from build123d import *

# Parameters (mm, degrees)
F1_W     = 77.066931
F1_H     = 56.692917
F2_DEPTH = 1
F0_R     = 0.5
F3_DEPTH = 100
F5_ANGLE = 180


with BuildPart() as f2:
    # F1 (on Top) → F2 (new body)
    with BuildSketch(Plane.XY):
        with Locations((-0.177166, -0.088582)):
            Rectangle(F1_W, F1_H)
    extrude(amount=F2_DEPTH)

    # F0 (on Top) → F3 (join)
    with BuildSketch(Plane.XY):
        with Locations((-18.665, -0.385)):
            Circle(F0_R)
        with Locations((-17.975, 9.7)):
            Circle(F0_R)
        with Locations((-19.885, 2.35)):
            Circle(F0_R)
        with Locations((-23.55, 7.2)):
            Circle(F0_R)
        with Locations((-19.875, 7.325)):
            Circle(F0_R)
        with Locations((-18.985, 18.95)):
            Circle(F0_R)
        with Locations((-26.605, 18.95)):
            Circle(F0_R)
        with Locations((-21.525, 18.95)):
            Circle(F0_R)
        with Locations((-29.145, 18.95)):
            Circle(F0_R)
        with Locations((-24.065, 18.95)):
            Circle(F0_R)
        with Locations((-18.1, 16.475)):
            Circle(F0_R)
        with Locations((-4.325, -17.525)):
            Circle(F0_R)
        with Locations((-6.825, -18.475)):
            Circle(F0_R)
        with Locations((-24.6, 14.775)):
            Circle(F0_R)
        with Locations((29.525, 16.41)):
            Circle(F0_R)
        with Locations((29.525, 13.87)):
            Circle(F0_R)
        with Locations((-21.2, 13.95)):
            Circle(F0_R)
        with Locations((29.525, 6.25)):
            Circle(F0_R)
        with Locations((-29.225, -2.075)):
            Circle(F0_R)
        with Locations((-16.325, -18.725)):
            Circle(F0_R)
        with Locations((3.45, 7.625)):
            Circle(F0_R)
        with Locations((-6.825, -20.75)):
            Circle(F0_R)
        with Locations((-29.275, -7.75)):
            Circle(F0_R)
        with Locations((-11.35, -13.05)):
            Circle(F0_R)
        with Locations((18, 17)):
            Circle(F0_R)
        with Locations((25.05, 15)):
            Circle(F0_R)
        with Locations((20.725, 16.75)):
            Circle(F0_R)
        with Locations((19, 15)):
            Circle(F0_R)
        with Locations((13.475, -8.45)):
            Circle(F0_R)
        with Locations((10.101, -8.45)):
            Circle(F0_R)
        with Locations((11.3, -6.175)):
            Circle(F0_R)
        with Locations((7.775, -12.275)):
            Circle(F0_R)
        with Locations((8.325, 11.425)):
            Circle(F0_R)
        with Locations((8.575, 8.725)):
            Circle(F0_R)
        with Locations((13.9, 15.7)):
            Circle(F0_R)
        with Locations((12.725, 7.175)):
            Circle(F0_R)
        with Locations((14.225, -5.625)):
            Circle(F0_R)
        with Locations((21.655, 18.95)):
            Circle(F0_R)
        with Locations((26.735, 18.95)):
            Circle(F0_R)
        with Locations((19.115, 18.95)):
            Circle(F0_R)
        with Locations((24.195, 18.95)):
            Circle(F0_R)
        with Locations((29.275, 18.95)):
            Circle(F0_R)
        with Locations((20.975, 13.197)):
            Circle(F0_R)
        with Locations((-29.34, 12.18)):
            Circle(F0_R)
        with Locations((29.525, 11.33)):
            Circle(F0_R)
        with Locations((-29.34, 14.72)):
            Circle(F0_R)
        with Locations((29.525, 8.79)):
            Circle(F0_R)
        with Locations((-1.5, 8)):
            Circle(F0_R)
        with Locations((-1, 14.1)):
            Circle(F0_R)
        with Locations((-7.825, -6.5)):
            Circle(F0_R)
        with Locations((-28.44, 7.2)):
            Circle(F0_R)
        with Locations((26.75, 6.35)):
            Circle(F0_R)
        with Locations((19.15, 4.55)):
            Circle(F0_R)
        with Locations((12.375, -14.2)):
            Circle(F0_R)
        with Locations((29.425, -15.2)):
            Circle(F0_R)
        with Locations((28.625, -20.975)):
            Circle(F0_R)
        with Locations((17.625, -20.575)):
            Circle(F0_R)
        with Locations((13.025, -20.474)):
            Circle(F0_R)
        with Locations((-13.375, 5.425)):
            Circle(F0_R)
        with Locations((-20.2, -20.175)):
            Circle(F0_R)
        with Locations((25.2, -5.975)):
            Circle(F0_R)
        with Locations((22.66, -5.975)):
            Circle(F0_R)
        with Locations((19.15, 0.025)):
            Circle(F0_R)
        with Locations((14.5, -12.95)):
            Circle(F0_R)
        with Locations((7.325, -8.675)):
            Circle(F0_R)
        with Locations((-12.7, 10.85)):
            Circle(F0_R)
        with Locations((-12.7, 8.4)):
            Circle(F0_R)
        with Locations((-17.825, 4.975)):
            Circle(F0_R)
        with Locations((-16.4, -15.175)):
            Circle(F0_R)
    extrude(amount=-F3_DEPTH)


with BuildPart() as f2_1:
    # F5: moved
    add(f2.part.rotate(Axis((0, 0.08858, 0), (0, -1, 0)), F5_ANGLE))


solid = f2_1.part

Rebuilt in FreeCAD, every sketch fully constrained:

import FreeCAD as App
import Part
import Sketcher
from FreeCAD import Vector
Q = App.Units.Quantity

doc = App.newDocument("Part")
body = doc.addObject("PartDesign::Body", "Body")

sketch1 = doc.addObject("Sketcher::SketchObject", "Sketch")
body.addObject(sketch1)
sketch1.AttachmentSupport = (doc.XY_Plane, [""])
sketch1.MapMode = "FlatFace"
sketch1.addGeometry([
    Part.LineSegment(Vector(-39, 28, 0), Vector(-39, -28, 0)),
    Part.LineSegment(Vector(-39, -28, 0), Vector(38, -28, 0)),
    Part.LineSegment(Vector(38, -28, 0), Vector(38, 28, 0)),
    Part.LineSegment(Vector(38, 28, 0), Vector(-39, 28, 0)),
], False)
sketch1.addConstraint([
    Sketcher.Constraint("Coincident", 0, 2, 1, 1),
    Sketcher.Constraint("Coincident", 1, 2, 2, 1),
    Sketcher.Constraint("Coincident", 2, 2, 3, 1),
    Sketcher.Constraint("Coincident", 3, 2, 0, 1),
    Sketcher.Constraint("Vertical", 0),
    Sketcher.Constraint("Horizontal", 1),
    Sketcher.Constraint("Vertical", 2),
    Sketcher.Constraint("Horizontal", 3),
    Sketcher.Constraint("DistanceX", 1, 1, 1, 2, Q("77.066931 mm")),
    Sketcher.Constraint("DistanceX", -1, 1, 1, 2, Q("38.356299 mm")),
    Sketcher.Constraint("DistanceY", 0, 2, 0, 1, Q("56.692917 mm")),
    Sketcher.Constraint("DistanceY", 0, 2, -1, 1, Q("28.43504 mm")),
])
pad1 = doc.addObject("PartDesign::Pad", "Pad")
body.addObject(pad1)
pad1.Profile = sketch1
pad1.Length = 1

sketch2 = doc.addObject("Sketcher::SketchObject", "Sketch001")
body.addObject(sketch2)
sketch2.AttachmentSupport = (doc.XY_Plane, [""])
sketch2.MapMode = "FlatFace"
sketch2.addGeometry([
    Part.Circle(Vector(-18.7, -0.4, 0), Vector(0, 0, 1), 0.5),
    Part.Circle(Vector(-18, 9.7, 0), Vector(0, 0, 1), 0.5),
    Part.Circle(Vector(-19.9, 2.4, 0), Vector(0, 0, 1), 0.5),
    Part.Circle(Vector(-23.6, 7.2, 0), Vector(0, 0, 1), 0.5),
    Part.Circle(Vector(-19.9, 7.3, 0), Vector(0, 0, 1), 0.5),
    Part.Circle(Vector(-19, 18.9, 0), Vector(0, 0, 1), 0.5),
    Part.Circle(Vector(-26.6, 18.9, 0), Vector(0, 0, 1), 0.5),
    Part.Circle(Vector(-21.5, 18.9, 0), Vector(0, 0, 1), 0.5),
    Part.Circle(Vector(-29.1, 18.9, 0), Vector(0, 0, 1), 0.5),
    Part.Circle(Vector(-24.1, 18.9, 0), Vector(0, 0, 1), 0.5),
    Part.Circle(Vector(-18.1, 16.5, 0), Vector(0, 0, 1), 0.5),
    Part.Circle(Vector(-4.3, -17.5, 0), Vector(0, 0, 1), 0.5),
    Part.Circle(Vector(-6.8, -18.5, 0), Vector(0, 0, 1), 0.5),
    Part.Circle(Vector(-24.6, 14.8, 0), Vector(0, 0, 1), 0.5),
    Part.Circle(Vector(29.5, 16.4, 0), Vector(0, 0, 1), 0.5),
    Part.Circle(Vector(29.5, 13.9, 0), Vector(0, 0, 1), 0.5),
    Part.Circle(Vector(-21.2, 13.9, 0), Vector(0, 0, 1), 0.5),
    Part.Circle(Vector(29.5, 6.2, 0), Vector(0, 0, 1), 0.5),
    Part.Circle(Vector(-29.2, -2.1, 0), Vector(0, 0, 1), 0.5),
    Part.Circle(Vector(-16.3, -18.7, 0), Vector(0, 0, 1), 0.5),
    Part.Circle(Vector(3.5, 7.6, 0), Vector(0, 0, 1), 0.5),
    Part.Circle(Vector(-6.8, -20.8, 0), Vector(0, 0, 1), 0.5),
    Part.Circle(Vector(-29.3, -7.8, 0), Vector(0, 0, 1), 0.5),
    Part.Circle(Vector(-11.3, -13.1, 0), Vector(0, 0, 1), 0.5),
    Part.Circle(Vector(18, 17, 0), Vector(0, 0, 1), 0.5),
    Part.Circle(Vector(25.1, 15, 0), Vector(0, 0, 1), 0.5),
    Part.Circle(Vector(20.7, 16.8, 0), Vector(0, 0, 1), 0.5),
    Part.Circle(Vector(19, 15, 0), Vector(0, 0, 1), 0.5),
    Part.Circle(Vector(13.5, -8.4, 0), Vector(0, 0, 1), 0.5),
    Part.Circle(Vector(10.1, -8.4, 0), Vector(0, 0, 1), 0.5),
    Part.Circle(Vector(11.3, -6.2, 0), Vector(0, 0, 1), 0.5),
    Part.Circle(Vector(7.8, -12.3, 0), Vector(0, 0, 1), 0.5),
    Part.Circle(Vector(8.3, 11.4, 0), Vector(0, 0, 1), 0.5),
    Part.Circle(Vector(8.6, 8.7, 0), Vector(0, 0, 1), 0.5),
    Part.Circle(Vector(13.9, 15.7, 0), Vector(0, 0, 1), 0.5),
    Part.Circle(Vector(12.7, 7.2, 0), Vector(0, 0, 1), 0.5),
    Part.Circle(Vector(14.2, -5.6, 0), Vector(0, 0, 1), 0.5),
    Part.Circle(Vector(21.7, 18.9, 0), Vector(0, 0, 1), 0.5),
    Part.Circle(Vector(26.7, 18.9, 0), Vector(0, 0, 1), 0.5),
    Part.Circle(Vector(19.1, 18.9, 0), Vector(0, 0, 1), 0.5),
    Part.Circle(Vector(24.2, 18.9, 0), Vector(0, 0, 1), 0.5),
    Part.Circle(Vector(29.3, 18.9, 0), Vector(0, 0, 1), 0.5),
    Part.Circle(Vector(21, 13.2, 0), Vector(0, 0, 1), 0.5),
    Part.Circle(Vector(-29.3, 12.2, 0), Vector(0, 0, 1), 0.5),
    Part.Circle(Vector(29.5, 11.3, 0), Vector(0, 0, 1), 0.5),
    Part.Circle(Vector(-29.3, 14.7, 0), Vector(0, 0, 1), 0.5),
    Part.Circle(Vector(29.5, 8.8, 0), Vector(0, 0, 1), 0.5),
    Part.Circle(Vector(-1.5, 8, 0), Vector(0, 0, 1), 0.5),
    Part.Circle(Vector(-1, 14.1, 0), Vector(0, 0, 1), 0.5),
    Part.Circle(Vector(-7.8, -6.5, 0), Vector(0, 0, 1), 0.5),
    Part.Circle(Vector(-28.4, 7.2, 0), Vector(0, 0, 1), 0.5),
    Part.Circle(Vector(26.8, 6.3, 0), Vector(0, 0, 1), 0.5),
    Part.Circle(Vector(19.1, 4.5, 0), Vector(0, 0, 1), 0.5),
    Part.Circle(Vector(12.4, -14.2, 0), Vector(0, 0, 1), 0.5),
    Part.Circle(Vector(29.4, -15.2, 0), Vector(0, 0, 1), 0.5),
    Part.Circle(Vector(28.6, -21, 0), Vector(0, 0, 1), 0.5),
    Part.Circle(Vector(17.6, -20.6, 0), Vector(0, 0, 1), 0.5),
    Part.Circle(Vector(13, -20.5, 0), Vector(0, 0, 1), 0.5),
    Part.Circle(Vector(-13.4, 5.4, 0), Vector(0, 0, 1), 0.5),
    Part.Circle(Vector(-20.2, -20.2, 0), Vector(0, 0, 1), 0.5),
    Part.Circle(Vector(25.2, -6, 0), Vector(0, 0, 1), 0.5),
    Part.Circle(Vector(22.7, -6, 0), Vector(0, 0, 1), 0.5),
    Part.Circle(Vector(19.1, 0, 0), Vector(0, 0, 1), 0.5),
    Part.Circle(Vector(14.5, -12.9, 0), Vector(0, 0, 1), 0.5),
    Part.Circle(Vector(7.3, -8.7, 0), Vector(0, 0, 1), 0.5),
    Part.Circle(Vector(-12.7, 10.8, 0), Vector(0, 0, 1), 0.5),
    Part.Circle(Vector(-12.7, 8.4, 0), Vector(0, 0, 1), 0.5),
    Part.Circle(Vector(-17.8, 5, 0), Vector(0, 0, 1), 0.5),
    Part.Circle(Vector(-16.4, -15.2, 0), Vector(0, 0, 1), 0.5),
], False)
sketch2.addConstraint([
    Sketcher.Constraint("Equal", 0, 1),
    Sketcher.Constraint("Equal", 1, 2),
    Sketcher.Constraint("Equal", 2, 3),
    Sketcher.Constraint("Equal", 3, 4),
    Sketcher.Constraint("Equal", 4, 5),
    Sketcher.Constraint("Equal", 5, 6),
    Sketcher.Constraint("Equal", 6, 7),
    Sketcher.Constraint("Equal", 7, 8),
    Sketcher.Constraint("Equal", 8, 9),
    Sketcher.Constraint("Equal", 9, 10),
    Sketcher.Constraint("Equal", 10, 11),
    Sketcher.Constraint("Equal", 11, 12),
    Sketcher.Constraint("Equal", 12, 13),
    Sketcher.Constraint("Equal", 13, 14),
    Sketcher.Constraint("Equal", 14, 15),
    Sketcher.Constraint("Equal", 15, 16),
    Sketcher.Constraint("Equal", 16, 17),
    Sketcher.Constraint("Equal", 17, 18),
    Sketcher.Constraint("Equal", 18, 19),
    Sketcher.Constraint("Equal", 19, 20),
    Sketcher.Constraint("Equal", 20, 21),
    Sketcher.Constraint("Equal", 21, 22),
    Sketcher.Constraint("Equal", 22, 23),
    Sketcher.Constraint("Equal", 23, 24),
    Sketcher.Constraint("Equal", 24, 25),
    Sketcher.Constraint("Equal", 25, 26),
    Sketcher.Constraint("Equal", 26, 27),
    Sketcher.Constraint("Equal", 27, 28),
    Sketcher.Constraint("Equal", 28, 29),
    Sketcher.Constraint("Equal", 29, 30),
    Sketcher.Constraint("Equal", 30, 31),
    Sketcher.Constraint("Equal", 31, 32),
    Sketcher.Constraint("Equal", 32, 33),
    Sketcher.Constraint("Equal", 33, 34),
    Sketcher.Constraint("Equal", 34, 35),
    Sketcher.Constraint("Equal", 35, 36),
    Sketcher.Constraint("Equal", 36, 37),
    Sketcher.Constraint("Equal", 37, 38),
    Sketcher.Constraint("Equal", 38, 39),
    Sketcher.Constraint("Equal", 39, 40),
    Sketcher.Constraint("Equal", 40, 41),
    Sketcher.Constraint("Equal", 41, 42),
    Sketcher.Constraint("Equal", 42, 43),
    Sketcher.Constraint("Equal", 43, 44),
    Sketcher.Constraint("Equal", 44, 45),
    Sketcher.Constraint("Equal", 45, 46),
    Sketcher.Constraint("Equal", 46, 47),
    Sketcher.Constraint("Equal", 47, 48),
    Sketcher.Constraint("Equal", 48, 49),
    Sketcher.Constraint("Equal", 49, 50),
    Sketcher.Constraint("Equal", 50, 51),
    Sketcher.Constraint("Equal", 51, 52),
    Sketcher.Constraint("Equal", 52, 53),
    Sketcher.Constraint("Equal", 53, 54),
    Sketcher.Constraint("Equal", 54, 55),
    Sketcher.Constraint("Equal", 55, 56),
    Sketcher.Constraint("Equal", 56, 57),
    Sketcher.Constraint("Equal", 57, 58),
    Sketcher.Constraint("Equal", 58, 59),
    Sketcher.Constraint("Equal", 59, 60),
    Sketcher.Constraint("Equal", 60, 61),
    Sketcher.Constraint("Equal", 61, 62),
    Sketcher.Constraint("Equal", 62, 63),
    Sketcher.Constraint("Equal", 63, 64),
    Sketcher.Constraint("Equal", 64, 65),
    Sketcher.Constraint("Equal", 65, 66),
    Sketcher.Constraint("Equal", 66, 67),
    Sketcher.Constraint("Equal", 67, 68),
    Sketcher.Constraint("Horizontal", 5, 3, 6, 3),
    Sketcher.Constraint("Horizontal", 6, 3, 7, 3),
    Sketcher.Constraint("Horizontal", 7, 3, 8, 3),
    Sketcher.Constraint("Horizontal", 8, 3, 9, 3),
    Sketcher.Constraint("Horizontal", 25, 3, 27, 3),
    Sketcher.Constraint("Horizontal", 28, 3, 29, 3),
    Sketcher.Constraint("Horizontal", 9, 3, 37, 3),
    Sketcher.Constraint("Horizontal", 37, 3, 38, 3),
    Sketcher.Constraint("Horizontal", 38, 3, 39, 3),
    Sketcher.Constraint("Horizontal", 39, 3, 40, 3),
    Sketcher.Constraint("Horizontal", 40, 3, 41, 3),
    Sketcher.Constraint("Horizontal", 3, 3, 50, 3),
    Sketcher.Constraint("Horizontal", 60, 3, 61, 3),
    Sketcher.Constraint("Vertical", 14, 3, 15, 3),
    Sketcher.Constraint("Vertical", 15, 3, 17, 3),
    Sketcher.Constraint("Vertical", 12, 3, 21, 3),
    Sketcher.Constraint("Vertical", 17, 3, 44, 3),
    Sketcher.Constraint("Vertical", 43, 3, 45, 3),
    Sketcher.Constraint("Vertical", 44, 3, 46, 3),
    Sketcher.Constraint("Vertical", 52, 3, 62, 3),
    Sketcher.Constraint("Vertical", 65, 3, 66, 3),
    Sketcher.Constraint("Diameter", 0, Q("1 mm")),
    Sketcher.Constraint("DistanceX", -1, 1, 24, 3, Q("18 mm")),
    Sketcher.Constraint("DistanceY", -1, 1, 24, 3, Q("17 mm")),
    Sketcher.Constraint("DistanceY", -1, 1, 25, 3, Q("15 mm")),
    Sketcher.Constraint("DistanceX", -1, 1, 27, 3, Q("19 mm")),
    Sketcher.Constraint("DistanceY", -1, 1, 47, 3, Q("8 mm")),
    Sketcher.Constraint("DistanceX", 48, 3, -1, 1, Q("1 mm")),
    Sketcher.Constraint("DistanceY", -1, 1, 1, 3, Q("9.7 mm")),
    Sketcher.Constraint("DistanceY", -1, 1, 3, 3, Q("7.2 mm")),
    Sketcher.Constraint("DistanceX", 10, 3, -1, 1, Q("18.1 mm")),
    Sketcher.Constraint("DistanceX", 13, 3, -1, 1, Q("24.6 mm")),
    Sketcher.Constraint("DistanceX", 16, 3, -1, 1, Q("21.2 mm")),
    Sketcher.Constraint("DistanceX", -1, 1, 30, 3, Q("11.3 mm")),
    Sketcher.Constraint("DistanceX", -1, 1, 34, 3, Q("13.9 mm")),
    Sketcher.Constraint("DistanceY", -1, 1, 34, 3, Q("15.7 mm")),
    Sketcher.Constraint("DistanceX", 47, 3, -1, 1, Q("1.5 mm")),
    Sketcher.Constraint("DistanceY", -1, 1, 48, 3, Q("14.1 mm")),
    Sketcher.Constraint("DistanceY", 49, 3, -1, 1, Q("6.5 mm")),
    Sketcher.Constraint("DistanceY", 53, 3, -1, 1, Q("14.2 mm")),
    Sketcher.Constraint("DistanceY", 54, 3, -1, 1, Q("15.2 mm")),
    Sketcher.Constraint("DistanceX", 59, 3, -1, 1, Q("20.2 mm")),
    Sketcher.Constraint("DistanceX", -1, 1, 60, 3, Q("25.2 mm")),
    Sketcher.Constraint("DistanceX", -1, 1, 63, 3, Q("14.5 mm")),
    Sketcher.Constraint("DistanceX", 65, 3, -1, 1, Q("12.7 mm")),
    Sketcher.Constraint("DistanceY", -1, 1, 66, 3, Q("8.4 mm")),
    Sketcher.Constraint("DistanceX", 68, 3, -1, 1, Q("16.4 mm")),
    Sketcher.Constraint("DistanceY", -1, 1, 2, 3, Q("2.35 mm")),
    Sketcher.Constraint("DistanceX", 3, 3, -1, 1, Q("23.55 mm")),
    Sketcher.Constraint("DistanceY", -1, 1, 5, 3, Q("18.95 mm")),
    Sketcher.Constraint("DistanceY", -1, 1, 14, 3, Q("16.41 mm")),
    Sketcher.Constraint("DistanceY", -1, 1, 15, 3, Q("13.87 mm")),
    Sketcher.Constraint("DistanceY", -1, 1, 16, 3, Q("13.95 mm")),
    Sketcher.Constraint("DistanceY", -1, 1, 17, 3, Q("6.25 mm")),
    Sketcher.Constraint("DistanceX", -1, 1, 20, 3, Q("3.45 mm")),
    Sketcher.Constraint("DistanceY", 21, 3, -1, 1, Q("20.75 mm")),
    Sketcher.Constraint("DistanceY", 22, 3, -1, 1, Q("7.75 mm")),
    Sketcher.Constraint("DistanceX", 23, 3, -1, 1, Q("11.35 mm")),
    Sketcher.Constraint("DistanceY", 23, 3, -1, 1, Q("13.05 mm")),
    Sketcher.Constraint("DistanceX", -1, 1, 25, 3, Q("25.05 mm")),
    Sketcher.Constraint("DistanceY", -1, 1, 26, 3, Q("16.75 mm")),
    Sketcher.Constraint("DistanceY", 28, 3, -1, 1, Q("8.45 mm")),
    Sketcher.Constraint("DistanceX", 43, 3, -1, 1, Q("29.34 mm")),
    Sketcher.Constraint("DistanceY", -1, 1, 43, 3, Q("12.18 mm")),
    Sketcher.Constraint("DistanceY", -1, 1, 44, 3, Q("11.33 mm")),
    Sketcher.Constraint("DistanceY", -1, 1, 45, 3, Q("14.72 mm")),
    Sketcher.Constraint("DistanceY", -1, 1, 46, 3, Q("8.79 mm")),
    Sketcher.Constraint("DistanceX", 50, 3, -1, 1, Q("28.44 mm")),
    Sketcher.Constraint("DistanceX", -1, 1, 51, 3, Q("26.75 mm")),
    Sketcher.Constraint("DistanceY", -1, 1, 51, 3, Q("6.35 mm")),
    Sketcher.Constraint("DistanceX", -1, 1, 52, 3, Q("19.15 mm")),
    Sketcher.Constraint("DistanceY", -1, 1, 52, 3, Q("4.55 mm")),
    Sketcher.Constraint("DistanceX", -1, 1, 61, 3, Q("22.66 mm")),
    Sketcher.Constraint("DistanceY", 63, 3, -1, 1, Q("12.95 mm")),
    Sketcher.Constraint("DistanceY", -1, 1, 65, 3, Q("10.85 mm")),
    Sketcher.Constraint("DistanceX", 0, 3, -1, 1, Q("18.665 mm")),
    Sketcher.Constraint("DistanceY", 0, 3, -1, 1, Q("0.385 mm")),
    Sketcher.Constraint("DistanceX", 1, 3, -1, 1, Q("17.975 mm")),
    Sketcher.Constraint("DistanceX", 2, 3, -1, 1, Q("19.885 mm")),
    Sketcher.Constraint("DistanceX", 4, 3, -1, 1, Q("19.875 mm")),
    Sketcher.Constraint("DistanceY", -1, 1, 4, 3, Q("7.325 mm")),
    Sketcher.Constraint("DistanceX", 5, 3, -1, 1, Q("18.985 mm")),
    Sketcher.Constraint("DistanceX", 6, 3, -1, 1, Q("26.605 mm")),
    Sketcher.Constraint("DistanceX", 7, 3, -1, 1, Q("21.525 mm")),
    Sketcher.Constraint("DistanceX", 8, 3, -1, 1, Q("29.145 mm")),
    Sketcher.Constraint("DistanceX", 9, 3, -1, 1, Q("24.065 mm")),
    Sketcher.Constraint("DistanceY", -1, 1, 10, 3, Q("16.475 mm")),
    Sketcher.Constraint("DistanceX", 11, 3, -1, 1, Q("4.325 mm")),
    Sketcher.Constraint("DistanceY", 11, 3, -1, 1, Q("17.525 mm")),
    Sketcher.Constraint("DistanceX", 12, 3, -1, 1, Q("6.825 mm")),
    Sketcher.Constraint("DistanceY", 12, 3, -1, 1, Q("18.475 mm")),
    Sketcher.Constraint("DistanceY", -1, 1, 13, 3, Q("14.775 mm")),
    Sketcher.Constraint("DistanceX", -1, 1, 14, 3, Q("29.525 mm")),
    Sketcher.Constraint("DistanceX", 18, 3, -1, 1, Q("29.225 mm")),
    Sketcher.Constraint("DistanceY", 18, 3, -1, 1, Q("2.075 mm")),
    Sketcher.Constraint("DistanceX", 19, 3, -1, 1, Q("16.325 mm")),
    Sketcher.Constraint("DistanceY", 19, 3, -1, 1, Q("18.725 mm")),
    Sketcher.Constraint("DistanceY", -1, 1, 20, 3, Q("7.625 mm")),
    Sketcher.Constraint("DistanceX", 22, 3, -1, 1, Q("29.275 mm")),
    Sketcher.Constraint("DistanceX", -1, 1, 26, 3, Q("20.725 mm")),
    Sketcher.Constraint("DistanceX", -1, 1, 28, 3, Q("13.475 mm")),
    Sketcher.Constraint("DistanceX", -1, 1, 29, 3, Q("10.101 mm")),
    Sketcher.Constraint("DistanceY", 30, 3, -1, 1, Q("6.175 mm")),
    Sketcher.Constraint("DistanceX", -1, 1, 31, 3, Q("7.775 mm")),
    Sketcher.Constraint("DistanceY", 31, 3, -1, 1, Q("12.275 mm")),
    Sketcher.Constraint("DistanceX", -1, 1, 32, 3, Q("8.325 mm")),
    Sketcher.Constraint("DistanceY", -1, 1, 32, 3, Q("11.425 mm")),
    Sketcher.Constraint("DistanceX", -1, 1, 33, 3, Q("8.575 mm")),
    Sketcher.Constraint("DistanceY", -1, 1, 33, 3, Q("8.725 mm")),
    Sketcher.Constraint("DistanceX", -1, 1, 35, 3, Q("12.725 mm")),
    Sketcher.Constraint("DistanceY", -1, 1, 35, 3, Q("7.175 mm")),
    Sketcher.Constraint("DistanceX", -1, 1, 36, 3, Q("14.225 mm")),
    Sketcher.Constraint("DistanceY", 36, 3, -1, 1, Q("5.625 mm")),
    Sketcher.Constraint("DistanceX", -1, 1, 37, 3, Q("21.655 mm")),
    Sketcher.Constraint("DistanceX", -1, 1, 38, 3, Q("26.735 mm")),
    Sketcher.Constraint("DistanceX", -1, 1, 39, 3, Q("19.115 mm")),
    Sketcher.Constraint("DistanceX", -1, 1, 40, 3, Q("24.195 mm")),
    Sketcher.Constraint("DistanceX", -1, 1, 41, 3, Q("29.275 mm")),
    Sketcher.Constraint("DistanceX", -1, 1, 42, 3, Q("20.975 mm")),
    Sketcher.Constraint("DistanceY", -1, 1, 42, 3, Q("13.197 mm")),
    Sketcher.Constraint("DistanceX", 49, 3, -1, 1, Q("7.825 mm")),
    Sketcher.Constraint("DistanceX", -1, 1, 53, 3, Q("12.375 mm")),
    Sketcher.Constraint("DistanceX", -1, 1, 54, 3, Q("29.425 mm")),
    Sketcher.Constraint("DistanceX", -1, 1, 55, 3, Q("28.625 mm")),
    Sketcher.Constraint("DistanceY", 55, 3, -1, 1, Q("20.975 mm")),
    Sketcher.Constraint("DistanceX", -1, 1, 56, 3, Q("17.625 mm")),
    Sketcher.Constraint("DistanceY", 56, 3, -1, 1, Q("20.575 mm")),
    Sketcher.Constraint("DistanceX", -1, 1, 57, 3, Q("13.025 mm")),
    Sketcher.Constraint("DistanceY", 57, 3, -1, 1, Q("20.474 mm")),
    Sketcher.Constraint("DistanceX", 58, 3, -1, 1, Q("13.375 mm")),
    Sketcher.Constraint("DistanceY", -1, 1, 58, 3, Q("5.425 mm")),
    Sketcher.Constraint("DistanceY", 59, 3, -1, 1, Q("20.175 mm")),
    Sketcher.Constraint("DistanceY", 60, 3, -1, 1, Q("5.975 mm")),
    Sketcher.Constraint("DistanceY", -1, 1, 62, 3, Q("0.025 mm")),
    Sketcher.Constraint("DistanceX", -1, 1, 64, 3, Q("7.325 mm")),
    Sketcher.Constraint("DistanceY", 64, 3, -1, 1, Q("8.675 mm")),
    Sketcher.Constraint("DistanceX", 67, 3, -1, 1, Q("17.825 mm")),
    Sketcher.Constraint("DistanceY", -1, 1, 67, 3, Q("4.975 mm")),
    Sketcher.Constraint("DistanceY", 68, 3, -1, 1, Q("15.175 mm")),
])
pad2 = doc.addObject("PartDesign::Pad", "Pad001")
body.addObject(pad2)
pad2.Profile = sketch2
pad2.Length = 100
pad2.Reversed = True
body2 = doc.addObject("PartDesign::Body", "Body001")
doc.recompute()

body.Placement = App.Placement(Vector(0, 0, 0), App.Rotation(Vector(0, -1, 0), 180))
boolean = doc.addObject("PartDesign::Boolean", "Boolean")
body2.addObject(boolean)
boolean.Type = "Fuse"
boolean.addObjects([body])

doc.recompute()
